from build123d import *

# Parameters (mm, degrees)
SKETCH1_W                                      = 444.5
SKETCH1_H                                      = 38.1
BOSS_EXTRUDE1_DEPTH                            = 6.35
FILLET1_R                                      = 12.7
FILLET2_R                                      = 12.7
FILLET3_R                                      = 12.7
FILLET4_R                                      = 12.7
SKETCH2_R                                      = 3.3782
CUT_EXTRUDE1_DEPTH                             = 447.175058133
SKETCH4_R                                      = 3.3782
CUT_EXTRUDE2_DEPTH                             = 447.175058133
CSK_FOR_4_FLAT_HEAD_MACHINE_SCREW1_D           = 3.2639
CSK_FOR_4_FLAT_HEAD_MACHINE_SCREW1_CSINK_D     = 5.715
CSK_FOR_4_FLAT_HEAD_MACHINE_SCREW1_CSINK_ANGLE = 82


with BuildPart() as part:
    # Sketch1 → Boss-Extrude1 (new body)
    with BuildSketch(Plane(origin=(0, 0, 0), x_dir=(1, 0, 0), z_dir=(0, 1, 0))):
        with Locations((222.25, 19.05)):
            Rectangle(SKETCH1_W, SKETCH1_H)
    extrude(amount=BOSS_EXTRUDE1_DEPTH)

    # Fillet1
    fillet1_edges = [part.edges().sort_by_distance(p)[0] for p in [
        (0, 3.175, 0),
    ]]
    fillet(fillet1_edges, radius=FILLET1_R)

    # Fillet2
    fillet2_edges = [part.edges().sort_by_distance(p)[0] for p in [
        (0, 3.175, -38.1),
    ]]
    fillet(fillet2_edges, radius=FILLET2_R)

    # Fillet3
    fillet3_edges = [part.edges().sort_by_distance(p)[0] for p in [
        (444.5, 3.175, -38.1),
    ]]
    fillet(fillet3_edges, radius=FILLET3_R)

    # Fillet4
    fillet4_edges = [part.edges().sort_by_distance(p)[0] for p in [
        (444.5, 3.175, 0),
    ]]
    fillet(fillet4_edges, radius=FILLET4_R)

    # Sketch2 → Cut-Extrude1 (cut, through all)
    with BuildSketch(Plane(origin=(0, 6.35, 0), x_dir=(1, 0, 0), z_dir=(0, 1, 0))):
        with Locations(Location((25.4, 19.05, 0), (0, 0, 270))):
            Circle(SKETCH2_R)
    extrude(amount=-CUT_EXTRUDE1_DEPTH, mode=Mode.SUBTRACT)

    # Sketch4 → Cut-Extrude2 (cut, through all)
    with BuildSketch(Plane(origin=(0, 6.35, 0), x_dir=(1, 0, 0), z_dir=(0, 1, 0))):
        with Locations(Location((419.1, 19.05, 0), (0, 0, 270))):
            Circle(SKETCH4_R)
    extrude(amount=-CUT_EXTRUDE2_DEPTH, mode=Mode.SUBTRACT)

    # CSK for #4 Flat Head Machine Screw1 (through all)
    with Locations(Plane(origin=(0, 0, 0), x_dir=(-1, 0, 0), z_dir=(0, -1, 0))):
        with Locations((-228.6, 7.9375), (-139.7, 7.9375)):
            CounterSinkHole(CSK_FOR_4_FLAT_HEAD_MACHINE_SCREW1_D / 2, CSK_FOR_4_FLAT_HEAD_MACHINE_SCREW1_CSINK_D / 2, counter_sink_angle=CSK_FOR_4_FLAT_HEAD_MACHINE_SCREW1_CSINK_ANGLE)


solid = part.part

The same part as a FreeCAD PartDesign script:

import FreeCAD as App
import Part
import Sketcher
from FreeCAD import Vector
Q = App.Units.Quantity


def edges_at(feature, points):
    """Names of the edges that pass closest to the given points."""
    edges = feature.Shape.Edges
    near = lambda p: min(range(len(edges)), key=lambda i: edges[i].distToShape(Part.Vertex(*p))[0])
    return sorted({f"Edge{near(p) + 1}" for p in points})

doc = App.newDocument("Part")
body = doc.addObject("PartDesign::Body", "Body")

# Sketch on XZ plane
sketch1 = body.newObject("Sketcher::SketchObject", "Sketch")
sketch1.AttachmentSupport = (doc.getObject("XZ_Plane"), [""])
sketch1.MapMode = "FlatFace"
sketch1.addGeometry(Part.LineSegment(Vector(0, -38.1, 0), Vector(0, 0, 0)), False)
sketch1.addGeometry(Part.LineSegment(Vector(0, 0, 0), Vector(444.5, 0, 0)), False)
sketch1.addGeometry(Part.LineSegment(Vector(444.5, 0, 0), Vector(444.5, -38.1, 0)), False)
sketch1.addGeometry(Part.LineSegment(Vector(444.5, -38.1, 0), Vector(0, -38.1, 0)), False)
sketch1.addConstraint(Sketcher.Constraint("Coincident", 0, 2, 1, 1))
sketch1.addConstraint(Sketcher.Constraint("Coincident", 1, 2, 2, 1))
sketch1.addConstraint(Sketcher.Constraint("Coincident", 2, 2, 3, 1))
sketch1.addConstraint(Sketcher.Constraint("Coincident", 3, 2, 0, 1))
sketch1.addConstraint(Sketcher.Constraint("Vertical", 0))
sketch1.addConstraint(Sketcher.Constraint("Horizontal", 1))
sketch1.addConstraint(Sketcher.Constraint("Vertical", 2))
sketch1.addConstraint(Sketcher.Constraint("Horizontal", 3))
sketch1.addConstraint(Sketcher.Constraint("Coincident", 0, 2, -1, 1))
sketch1.addConstraint(Sketcher.Constraint("DistanceX", 1, 1, 1, 2, Q("17.5 in")))
sketch1.addConstraint(Sketcher.Constraint("DistanceY", 0, 1, 0, 2, Q("1.5 in")))
pad1 = body.newObject("PartDesign::Pad", "Pad")
pad1.Profile = sketch1
pad1.Length = Q("0.25 in")
pad1.Reversed = True
doc.recompute()

fillet = body.newObject("PartDesign::Fillet", "Fillet")
fillet.Base = (pad1, edges_at(pad1, [(0, 3.175, 0)]))
fillet.Radius = Q("0.5 in")
doc.recompute()

fillet2 = body.newObject("PartDesign::Fillet", "Fillet001")
fillet2.Base = (fillet, edges_at(fillet, [(0, 3.175, -38.1)]))
fillet2.Radius = Q("0.5 in")
doc.recompute()

fillet3 = body.newObject("PartDesign::Fillet", "Fillet002")
fillet3.Base = (fillet2, edges_at(fillet2, [(444.5, 3.175, -38.1)]))
fillet3.Radius = Q("0.5 in")
doc.recompute()

fillet4 = body.newObject("PartDesign::Fillet", "Fillet003")
fillet4.Base = (fillet3, edges_at(fillet3, [(444.5, 3.175, 0)]))
fillet4.Radius = Q("0.5 in")

# Sketch on XZ plane
sketch2 = body.newObject("Sketcher::SketchObject", "Sketch001")
sketch2.AttachmentSupport = (doc.getObject("XZ_Plane"), [""])
sketch2.MapMode = "FlatFace"
sketch2.AttachmentOffset = App.Placement(Vector(0, 0, -0.25 * 25.4), App.Rotation())
sketch2.addGeometry(Part.Circle(Vector(25.4, -19.05, 0), Vector(0, 0, 1), 3.3782), False)
sketch2.addConstraint(Sketcher.Constraint("Diameter", 0, Q("0.266 in")))
sketch2.addConstraint(Sketcher.Constraint("DistanceX", -1, 1, 0, 3, Q("1 in")))
sketch2.addConstraint(Sketcher.Constraint("DistanceY", 0, 3, -1, 1, Q("0.75 in")))
pocket1 = body.newObject("PartDesign::Pocket", "Pocket")
pocket1.Profile = sketch2
pocket1.Type = "ThroughAll"
pocket1.Reversed = True

# Sketch on XZ plane
sketch3 = body.newObject("Sketcher::SketchObject", "Sketch002")
sketch3.AttachmentSupport = (doc.getObject("XZ_Plane"), [""])
sketch3.MapMode = "FlatFace"
sketch3.AttachmentOffset = App.Placement(Vector(0, 0, -0.25 * 25.4), App.Rotation())
sketch3.addGeometry(Part.Circle(Vector(419.1, -19.05, 0), Vector(0, 0, 1), 3.3782), False)
sketch3.addConstraint(Sketcher.Constraint("Diameter", 0, Q("0.266 in")))
sketch3.addConstraint(Sketcher.Constraint("DistanceX", -1, 1, 0, 3, Q("16.5 in")))
sketch3.addConstraint(Sketcher.Constraint("DistanceY", 0, 3, -1, 1, Q("0.75 in")))
pocket2 = body.newObject("PartDesign::Pocket", "Pocket001")
pocket2.Profile = sketch3
pocket2.Type = "ThroughAll"
pocket2.Reversed = True

# Sketch on XZ plane
sketch4 = body.newObject("Sketcher::SketchObject", "Sketch003")
sketch4.AttachmentSupport = (doc.getObject("XZ_Plane"), [""])
sketch4.MapMode = "FlatFace"
sketch4.addGeometry(Part.Circle(Vector(228.6, -7.9375, 0), Vector(0, 0, 1), 1.63195), False)
sketch4.addGeometry(Part.Circle(Vector(139.7, -7.9375, 0), Vector(0, 0, 1), 1.63195), False)
sketch4.addConstraint(Sketcher.Constraint("Equal", 0, 1))
sketch4.addConstraint(Sketcher.Constraint("Horizontal", 0, 3, 1, 3))
sketch4.addConstraint(Sketcher.Constraint("DistanceX", -1, 1, 0, 3, Q("9 in")))
sketch4.addConstraint(Sketcher.Constraint("Diameter", 0, Q("0.1285 in")))
sketch4.addConstraint(Sketcher.Constraint("DistanceX", -1, 1, 1, 3, Q("5.5 in")))
sketch4.addConstraint(Sketcher.Constraint("DistanceY", 0, 3, -1, 1, Q("0.3125 in")))
doc.recompute()
hole = body.newObject("PartDesign::Hole", "Hole")
hole.Profile = sketch4
hole.ThreadType = "None"
hole.Diameter = Q("0.1285 in")
hole.DepthType = "ThroughAll"
hole.HoleCutType = "Countersink"
hole.HoleCutDiameter = Q("0.225 in")
hole.HoleCutCountersinkAngle = 82

doc.recompute()
